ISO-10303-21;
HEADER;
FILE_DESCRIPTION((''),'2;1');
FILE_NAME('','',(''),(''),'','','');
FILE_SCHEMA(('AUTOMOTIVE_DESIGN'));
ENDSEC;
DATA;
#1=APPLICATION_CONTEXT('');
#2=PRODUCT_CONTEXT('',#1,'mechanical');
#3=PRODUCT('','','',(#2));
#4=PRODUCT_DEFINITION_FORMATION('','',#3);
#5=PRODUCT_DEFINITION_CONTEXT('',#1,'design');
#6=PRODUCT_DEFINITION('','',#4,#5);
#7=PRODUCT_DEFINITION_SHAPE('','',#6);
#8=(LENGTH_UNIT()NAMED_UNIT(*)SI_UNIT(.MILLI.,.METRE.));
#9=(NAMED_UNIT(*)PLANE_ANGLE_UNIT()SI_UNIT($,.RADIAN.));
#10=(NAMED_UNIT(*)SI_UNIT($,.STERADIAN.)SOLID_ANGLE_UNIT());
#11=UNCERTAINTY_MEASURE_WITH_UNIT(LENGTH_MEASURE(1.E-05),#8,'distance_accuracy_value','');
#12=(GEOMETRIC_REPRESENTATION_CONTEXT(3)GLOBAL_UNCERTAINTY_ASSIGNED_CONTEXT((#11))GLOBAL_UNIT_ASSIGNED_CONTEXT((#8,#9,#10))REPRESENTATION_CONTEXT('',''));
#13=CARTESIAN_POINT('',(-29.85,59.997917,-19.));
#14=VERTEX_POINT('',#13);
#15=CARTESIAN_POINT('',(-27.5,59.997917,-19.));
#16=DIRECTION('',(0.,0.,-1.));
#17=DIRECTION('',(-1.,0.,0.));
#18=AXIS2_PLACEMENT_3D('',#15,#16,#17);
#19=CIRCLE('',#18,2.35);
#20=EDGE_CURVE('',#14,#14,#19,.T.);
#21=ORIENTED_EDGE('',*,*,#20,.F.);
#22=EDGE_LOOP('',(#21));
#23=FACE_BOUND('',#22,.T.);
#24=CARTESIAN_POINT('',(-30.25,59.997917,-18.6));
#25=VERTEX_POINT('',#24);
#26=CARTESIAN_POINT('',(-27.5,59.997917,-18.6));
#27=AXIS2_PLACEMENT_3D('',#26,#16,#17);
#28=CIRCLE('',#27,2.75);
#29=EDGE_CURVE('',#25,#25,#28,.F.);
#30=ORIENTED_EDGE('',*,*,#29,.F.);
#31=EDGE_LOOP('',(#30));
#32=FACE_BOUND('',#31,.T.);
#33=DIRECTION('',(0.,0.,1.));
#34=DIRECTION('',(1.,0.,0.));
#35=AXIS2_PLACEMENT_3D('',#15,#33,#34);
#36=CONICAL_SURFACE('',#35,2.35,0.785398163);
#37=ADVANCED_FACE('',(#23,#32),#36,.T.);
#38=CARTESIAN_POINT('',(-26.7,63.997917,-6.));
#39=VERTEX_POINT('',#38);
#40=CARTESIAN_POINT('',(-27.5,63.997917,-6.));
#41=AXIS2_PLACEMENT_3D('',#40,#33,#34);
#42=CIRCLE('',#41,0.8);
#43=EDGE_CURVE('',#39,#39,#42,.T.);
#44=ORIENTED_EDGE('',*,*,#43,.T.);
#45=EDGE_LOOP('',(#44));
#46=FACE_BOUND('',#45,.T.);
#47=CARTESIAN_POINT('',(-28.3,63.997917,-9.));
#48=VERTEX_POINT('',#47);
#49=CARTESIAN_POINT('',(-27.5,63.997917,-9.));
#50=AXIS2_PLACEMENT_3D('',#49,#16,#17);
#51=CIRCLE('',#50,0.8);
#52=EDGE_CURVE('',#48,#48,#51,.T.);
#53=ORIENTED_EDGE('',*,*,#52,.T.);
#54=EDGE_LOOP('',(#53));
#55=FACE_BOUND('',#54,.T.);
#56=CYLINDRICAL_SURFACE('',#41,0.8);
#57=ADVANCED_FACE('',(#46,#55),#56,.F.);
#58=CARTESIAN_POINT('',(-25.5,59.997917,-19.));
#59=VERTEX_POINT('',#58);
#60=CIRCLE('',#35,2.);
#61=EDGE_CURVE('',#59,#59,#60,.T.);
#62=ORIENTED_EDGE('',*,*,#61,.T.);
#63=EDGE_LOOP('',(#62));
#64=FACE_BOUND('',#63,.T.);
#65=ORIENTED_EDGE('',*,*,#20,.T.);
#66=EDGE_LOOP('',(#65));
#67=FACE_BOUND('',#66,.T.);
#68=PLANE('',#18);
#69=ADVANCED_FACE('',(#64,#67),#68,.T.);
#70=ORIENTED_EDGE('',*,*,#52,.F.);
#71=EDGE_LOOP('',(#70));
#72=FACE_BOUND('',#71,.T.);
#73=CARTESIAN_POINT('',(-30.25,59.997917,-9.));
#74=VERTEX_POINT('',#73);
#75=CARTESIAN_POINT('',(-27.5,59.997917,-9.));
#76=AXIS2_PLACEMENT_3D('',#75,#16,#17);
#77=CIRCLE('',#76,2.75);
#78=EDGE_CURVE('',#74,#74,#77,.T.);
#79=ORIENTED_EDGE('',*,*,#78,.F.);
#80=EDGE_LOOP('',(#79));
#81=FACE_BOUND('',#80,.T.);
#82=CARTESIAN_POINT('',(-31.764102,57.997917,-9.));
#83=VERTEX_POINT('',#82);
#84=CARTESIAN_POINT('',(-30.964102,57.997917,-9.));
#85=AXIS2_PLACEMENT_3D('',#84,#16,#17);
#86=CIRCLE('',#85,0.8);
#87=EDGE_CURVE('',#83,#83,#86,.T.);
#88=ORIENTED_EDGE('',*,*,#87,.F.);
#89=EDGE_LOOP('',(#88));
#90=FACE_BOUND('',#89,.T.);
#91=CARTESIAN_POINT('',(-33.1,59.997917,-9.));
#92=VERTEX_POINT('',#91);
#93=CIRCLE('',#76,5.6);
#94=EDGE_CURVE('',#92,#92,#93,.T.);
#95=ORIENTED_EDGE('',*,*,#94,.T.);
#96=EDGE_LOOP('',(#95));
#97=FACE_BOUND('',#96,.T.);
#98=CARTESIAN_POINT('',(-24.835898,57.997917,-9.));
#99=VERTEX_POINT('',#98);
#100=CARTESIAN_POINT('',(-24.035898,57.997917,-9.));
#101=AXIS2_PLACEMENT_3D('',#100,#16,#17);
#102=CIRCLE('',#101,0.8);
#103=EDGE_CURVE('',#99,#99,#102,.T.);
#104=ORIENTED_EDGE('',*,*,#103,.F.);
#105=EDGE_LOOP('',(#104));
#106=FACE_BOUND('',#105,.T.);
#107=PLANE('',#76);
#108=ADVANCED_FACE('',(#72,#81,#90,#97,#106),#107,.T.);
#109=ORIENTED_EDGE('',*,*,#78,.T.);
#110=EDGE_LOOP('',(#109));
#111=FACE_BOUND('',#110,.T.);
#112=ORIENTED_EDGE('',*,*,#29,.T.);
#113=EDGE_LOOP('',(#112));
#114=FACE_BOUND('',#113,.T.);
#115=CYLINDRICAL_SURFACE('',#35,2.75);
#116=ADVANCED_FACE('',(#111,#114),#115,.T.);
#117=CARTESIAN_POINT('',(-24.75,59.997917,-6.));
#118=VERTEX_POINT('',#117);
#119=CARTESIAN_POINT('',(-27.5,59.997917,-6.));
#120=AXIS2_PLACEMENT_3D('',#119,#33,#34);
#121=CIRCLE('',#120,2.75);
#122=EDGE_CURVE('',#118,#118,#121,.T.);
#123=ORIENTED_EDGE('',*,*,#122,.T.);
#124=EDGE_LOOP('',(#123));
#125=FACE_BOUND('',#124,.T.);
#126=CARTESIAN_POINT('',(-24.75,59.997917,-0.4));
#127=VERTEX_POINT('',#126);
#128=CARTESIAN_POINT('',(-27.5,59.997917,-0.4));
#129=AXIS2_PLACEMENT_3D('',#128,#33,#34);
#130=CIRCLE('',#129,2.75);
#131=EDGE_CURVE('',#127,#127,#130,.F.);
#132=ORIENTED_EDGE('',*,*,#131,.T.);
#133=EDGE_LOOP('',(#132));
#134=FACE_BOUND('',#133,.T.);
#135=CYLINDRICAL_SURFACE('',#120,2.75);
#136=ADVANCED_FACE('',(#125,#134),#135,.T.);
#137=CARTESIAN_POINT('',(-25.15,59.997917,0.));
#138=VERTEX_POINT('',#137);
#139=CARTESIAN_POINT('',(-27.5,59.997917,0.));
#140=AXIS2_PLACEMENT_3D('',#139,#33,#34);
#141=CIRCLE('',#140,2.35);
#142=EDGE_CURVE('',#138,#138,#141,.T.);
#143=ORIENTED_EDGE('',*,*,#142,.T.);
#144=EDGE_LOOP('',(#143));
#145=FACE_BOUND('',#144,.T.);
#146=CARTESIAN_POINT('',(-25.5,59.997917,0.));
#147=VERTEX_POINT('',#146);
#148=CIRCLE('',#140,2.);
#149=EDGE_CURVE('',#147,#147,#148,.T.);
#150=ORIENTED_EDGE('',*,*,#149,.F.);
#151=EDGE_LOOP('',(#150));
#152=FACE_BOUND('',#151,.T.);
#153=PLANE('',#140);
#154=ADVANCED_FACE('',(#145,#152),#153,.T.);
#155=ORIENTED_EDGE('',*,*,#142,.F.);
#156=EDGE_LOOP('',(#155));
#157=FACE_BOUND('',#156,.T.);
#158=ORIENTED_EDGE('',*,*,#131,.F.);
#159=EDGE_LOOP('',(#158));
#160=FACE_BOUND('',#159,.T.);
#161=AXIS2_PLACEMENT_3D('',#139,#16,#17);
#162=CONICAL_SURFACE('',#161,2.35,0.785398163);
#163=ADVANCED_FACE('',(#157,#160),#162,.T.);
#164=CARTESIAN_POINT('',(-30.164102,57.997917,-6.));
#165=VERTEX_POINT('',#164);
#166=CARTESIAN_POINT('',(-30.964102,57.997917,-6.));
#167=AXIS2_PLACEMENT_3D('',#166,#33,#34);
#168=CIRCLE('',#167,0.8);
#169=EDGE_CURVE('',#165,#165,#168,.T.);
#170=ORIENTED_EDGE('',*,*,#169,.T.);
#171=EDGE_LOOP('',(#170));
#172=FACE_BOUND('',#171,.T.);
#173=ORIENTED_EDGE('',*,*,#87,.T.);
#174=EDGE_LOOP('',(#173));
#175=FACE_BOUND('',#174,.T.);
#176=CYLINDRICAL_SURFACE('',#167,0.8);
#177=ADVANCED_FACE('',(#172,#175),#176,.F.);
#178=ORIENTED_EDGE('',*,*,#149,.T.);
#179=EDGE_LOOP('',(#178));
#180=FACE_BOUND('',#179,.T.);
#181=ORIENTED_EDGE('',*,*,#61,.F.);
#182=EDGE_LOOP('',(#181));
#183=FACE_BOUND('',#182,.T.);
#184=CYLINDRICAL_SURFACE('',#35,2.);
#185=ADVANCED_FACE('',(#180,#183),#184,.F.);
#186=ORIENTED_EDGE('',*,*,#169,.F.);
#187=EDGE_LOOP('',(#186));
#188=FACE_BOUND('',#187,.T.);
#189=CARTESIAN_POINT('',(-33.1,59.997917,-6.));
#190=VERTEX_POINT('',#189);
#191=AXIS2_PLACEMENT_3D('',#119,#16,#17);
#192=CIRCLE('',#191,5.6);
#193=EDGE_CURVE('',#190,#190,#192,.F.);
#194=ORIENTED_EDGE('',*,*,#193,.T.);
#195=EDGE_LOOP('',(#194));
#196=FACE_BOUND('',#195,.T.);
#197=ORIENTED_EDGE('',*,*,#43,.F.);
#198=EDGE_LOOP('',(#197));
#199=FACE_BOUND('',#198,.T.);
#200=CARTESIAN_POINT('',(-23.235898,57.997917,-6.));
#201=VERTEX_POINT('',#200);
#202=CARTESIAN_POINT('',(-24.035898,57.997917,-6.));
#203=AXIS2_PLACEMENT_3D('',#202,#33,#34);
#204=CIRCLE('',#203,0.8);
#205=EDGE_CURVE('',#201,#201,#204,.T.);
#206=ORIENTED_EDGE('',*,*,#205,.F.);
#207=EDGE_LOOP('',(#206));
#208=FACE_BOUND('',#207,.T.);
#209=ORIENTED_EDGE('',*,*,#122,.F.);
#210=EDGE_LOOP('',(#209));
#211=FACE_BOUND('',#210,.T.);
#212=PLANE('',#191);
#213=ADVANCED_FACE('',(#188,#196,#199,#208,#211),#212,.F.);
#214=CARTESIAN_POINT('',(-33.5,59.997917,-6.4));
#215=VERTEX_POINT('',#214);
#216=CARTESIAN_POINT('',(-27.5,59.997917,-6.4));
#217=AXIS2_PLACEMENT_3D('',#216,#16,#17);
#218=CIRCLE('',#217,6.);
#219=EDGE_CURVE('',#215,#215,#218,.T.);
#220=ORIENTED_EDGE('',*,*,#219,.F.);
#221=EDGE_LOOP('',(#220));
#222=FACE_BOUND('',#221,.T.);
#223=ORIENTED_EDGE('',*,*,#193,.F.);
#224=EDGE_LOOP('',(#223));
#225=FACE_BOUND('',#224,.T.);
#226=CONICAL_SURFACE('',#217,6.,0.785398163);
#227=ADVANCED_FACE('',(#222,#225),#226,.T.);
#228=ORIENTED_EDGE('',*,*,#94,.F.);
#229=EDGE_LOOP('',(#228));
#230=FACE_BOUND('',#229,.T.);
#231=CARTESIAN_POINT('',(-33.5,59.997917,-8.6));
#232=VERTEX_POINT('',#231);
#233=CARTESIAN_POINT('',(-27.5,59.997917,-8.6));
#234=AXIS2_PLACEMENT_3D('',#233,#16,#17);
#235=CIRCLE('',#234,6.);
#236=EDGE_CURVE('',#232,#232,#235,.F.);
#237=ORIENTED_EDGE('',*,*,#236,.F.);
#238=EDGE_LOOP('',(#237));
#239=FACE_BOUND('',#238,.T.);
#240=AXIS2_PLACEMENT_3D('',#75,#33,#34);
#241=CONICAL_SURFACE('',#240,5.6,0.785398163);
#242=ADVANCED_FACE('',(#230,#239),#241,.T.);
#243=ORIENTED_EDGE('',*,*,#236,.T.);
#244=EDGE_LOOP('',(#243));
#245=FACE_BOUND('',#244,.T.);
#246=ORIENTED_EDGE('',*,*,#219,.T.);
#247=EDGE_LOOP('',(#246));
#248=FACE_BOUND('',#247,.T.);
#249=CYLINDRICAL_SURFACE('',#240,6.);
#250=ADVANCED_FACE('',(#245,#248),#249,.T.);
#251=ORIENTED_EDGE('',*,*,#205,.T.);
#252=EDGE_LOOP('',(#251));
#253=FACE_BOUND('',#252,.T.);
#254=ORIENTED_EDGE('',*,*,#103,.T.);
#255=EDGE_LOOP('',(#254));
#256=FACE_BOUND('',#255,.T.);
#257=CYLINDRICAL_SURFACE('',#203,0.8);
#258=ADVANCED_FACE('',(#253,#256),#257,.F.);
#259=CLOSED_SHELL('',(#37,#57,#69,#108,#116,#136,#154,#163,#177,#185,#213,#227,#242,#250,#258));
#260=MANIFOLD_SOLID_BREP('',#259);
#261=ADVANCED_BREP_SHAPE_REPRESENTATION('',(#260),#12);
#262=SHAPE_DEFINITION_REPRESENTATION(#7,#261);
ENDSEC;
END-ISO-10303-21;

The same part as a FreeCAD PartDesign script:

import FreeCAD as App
import Part
import Sketcher
from FreeCAD import Vector
Q = App.Units.Quantity


def edges_at(feature, points):
    """Names of the edges that pass closest to the given points."""
    edges = feature.Shape.Edges
    near = lambda p: min(range(len(edges)), key=lambda i: edges[i].distToShape(Part.Vertex(*p))[0])
    return sorted({f"Edge{near(p) + 1}" for p in points})

doc = App.newDocument("Part")
body = doc.addObject("PartDesign::Body", "Body")

sketch1 = body.newObject("Sketcher::SketchObject", "Sketch")
sketch1.AttachmentSupport = (doc.getObject("XY_Plane"), [""])
sketch1.MapMode = "FlatFace"
sketch1.addGeometry(Part.Circle(Vector(-27.5, 60, 0), Vector(0, 0, 1), 2.8), False)
sketch1.addConstraint([
    Sketcher.Constraint("Diameter", 0, Q("5.5 mm")),
    Sketcher.Constraint("DistanceX", 0, 3, -1, 1, Q("27.5 mm")),
    Sketcher.Constraint("DistanceY", -1, 1, 0, 3, Q("59.997917 mm")),
])
pad1 = body.newObject("PartDesign::Pad", "Pad")
pad1.Profile = sketch1
pad1.Length = 6
pad1.Reversed = True

sketch2 = body.newObject("Sketcher::SketchObject", "Sketch001")
sketch2.AttachmentSupport = (doc.getObject("XY_Plane"), [""])
sketch2.MapMode = "FlatFace"
sketch2.AttachmentOffset = App.Placement(Vector(0, 0, -6), App.Rotation())
sketch2.addGeometry(Part.Circle(Vector(-28, 60, 0), Vector(0, 0, 1), 6), False)
sketch2.addConstraint([
    Sketcher.Constraint("Diameter", 0, Q("12 mm")),
    Sketcher.Constraint("DistanceX", 0, 3, -1, 1, Q("27.5 mm")),
    Sketcher.Constraint("DistanceY", -1, 1, 0, 3, Q("59.997917 mm")),
])
pad2 = body.newObject("PartDesign::Pad", "Pad001")
pad2.Profile = sketch2
pad2.Length = 3
pad2.Reversed = True

sketch3 = body.newObject("Sketcher::SketchObject", "Sketch002")
sketch3.AttachmentSupport = (doc.getObject("XY_Plane"), [""])
sketch3.MapMode = "FlatFace"
sketch3.AttachmentOffset = App.Placement(Vector(0, 0, -9), App.Rotation())
sketch3.addGeometry(Part.Circle(Vector(-27.5, 60, 0), Vector(0, 0, 1), 2.8), False)
sketch3.addConstraint([
    Sketcher.Constraint("Diameter", 0, Q("5.5 mm")),
    Sketcher.Constraint("DistanceX", 0, 3, -1, 1, Q("27.5 mm")),
    Sketcher.Constraint("DistanceY", -1, 1, 0, 3, Q("59.997917 mm")),
])
pad3 = body.newObject("PartDesign::Pad", "Pad002")
pad3.Profile = sketch3
pad3.Length = 10
pad3.Reversed = True

sketch4 = body.newObject("Sketcher::SketchObject", "Sketch003")
sketch4.AttachmentSupport = (doc.getObject("XY_Plane"), [""])
sketch4.MapMode = "FlatFace"
sketch4.AttachmentOffset = App.Placement(Vector(0, 0, -6), App.Rotation())
sketch4.addGeometry([
    Part.Circle(Vector(-24, 58, 0), Vector(0, 0, 1), 0.8),
    Part.Circle(Vector(-31, 58, 0), Vector(0, 0, 1), 0.8),
    Part.Circle(Vector(-27.5, 64, 0), Vector(0, 0, 1), 0.8),
], False)
sketch4.addConstraint([
    Sketcher.Constraint("Equal", 0, 1),
    Sketcher.Constraint("Equal", 1, 2),
    Sketcher.Constraint("Horizontal", 0, 3, 1, 3),
    Sketcher.Constraint("Diameter", 0, Q("1.6 mm")),
    Sketcher.Constraint("DistanceY", 0, 3, 2, 3, Q("6 mm")),
    Sketcher.Constraint("DistanceX", 2, 3, -1, 1, Q("27.5 mm")),
    Sketcher.Constraint("DistanceX", 0, 3, -1, 1, Q("24.035898 mm")),
    Sketcher.Constraint("DistanceX", 1, 3, -1, 1, Q("30.964102 mm")),
    Sketcher.Constraint("DistanceY", -1, 1, 0, 3, Q("57.997917 mm")),
])
doc.recompute()
hole = body.newObject("PartDesign::Hole", "Hole")
hole.Profile = sketch4
hole.ThreadType = "None"
hole.Diameter = 1.6
hole.DepthType = "ThroughAll"
doc.recompute()

chamfer = body.newObject("PartDesign::Chamfer", "Chamfer")
chamfer.Base = (hole, edges_at(hole, [
    (-24.75, 59.998, -19),
    (-30.25, 59.998, 0),
    (-21.5, 59.998, -6),
    (-21.5, 59.998, -9),
]))
chamfer.Size = 0.4

sketch5 = body.newObject("Sketcher::SketchObject", "Sketch004")
sketch5.AttachmentSupport = (doc.getObject("XY_Plane"), [""])
sketch5.MapMode = "FlatFace"
sketch5.addGeometry(Part.Circle(Vector(-27.5, 60, 0), Vector(0, 0, 1), 2), False)
sketch5.addConstraint([
    Sketcher.Constraint("Diameter", 0, Q("4 mm")),
    Sketcher.Constraint("DistanceX", 0, 3, -1, 1, Q("27.5 mm")),
    Sketcher.Constraint("DistanceY", -1, 1, 0, 3, Q("59.997917 mm")),
])
pocket1 = body.newObject("PartDesign::Pocket", "Pocket")
pocket1.Profile = sketch5
pocket1.Type = "ThroughAll"

doc.recompute()
